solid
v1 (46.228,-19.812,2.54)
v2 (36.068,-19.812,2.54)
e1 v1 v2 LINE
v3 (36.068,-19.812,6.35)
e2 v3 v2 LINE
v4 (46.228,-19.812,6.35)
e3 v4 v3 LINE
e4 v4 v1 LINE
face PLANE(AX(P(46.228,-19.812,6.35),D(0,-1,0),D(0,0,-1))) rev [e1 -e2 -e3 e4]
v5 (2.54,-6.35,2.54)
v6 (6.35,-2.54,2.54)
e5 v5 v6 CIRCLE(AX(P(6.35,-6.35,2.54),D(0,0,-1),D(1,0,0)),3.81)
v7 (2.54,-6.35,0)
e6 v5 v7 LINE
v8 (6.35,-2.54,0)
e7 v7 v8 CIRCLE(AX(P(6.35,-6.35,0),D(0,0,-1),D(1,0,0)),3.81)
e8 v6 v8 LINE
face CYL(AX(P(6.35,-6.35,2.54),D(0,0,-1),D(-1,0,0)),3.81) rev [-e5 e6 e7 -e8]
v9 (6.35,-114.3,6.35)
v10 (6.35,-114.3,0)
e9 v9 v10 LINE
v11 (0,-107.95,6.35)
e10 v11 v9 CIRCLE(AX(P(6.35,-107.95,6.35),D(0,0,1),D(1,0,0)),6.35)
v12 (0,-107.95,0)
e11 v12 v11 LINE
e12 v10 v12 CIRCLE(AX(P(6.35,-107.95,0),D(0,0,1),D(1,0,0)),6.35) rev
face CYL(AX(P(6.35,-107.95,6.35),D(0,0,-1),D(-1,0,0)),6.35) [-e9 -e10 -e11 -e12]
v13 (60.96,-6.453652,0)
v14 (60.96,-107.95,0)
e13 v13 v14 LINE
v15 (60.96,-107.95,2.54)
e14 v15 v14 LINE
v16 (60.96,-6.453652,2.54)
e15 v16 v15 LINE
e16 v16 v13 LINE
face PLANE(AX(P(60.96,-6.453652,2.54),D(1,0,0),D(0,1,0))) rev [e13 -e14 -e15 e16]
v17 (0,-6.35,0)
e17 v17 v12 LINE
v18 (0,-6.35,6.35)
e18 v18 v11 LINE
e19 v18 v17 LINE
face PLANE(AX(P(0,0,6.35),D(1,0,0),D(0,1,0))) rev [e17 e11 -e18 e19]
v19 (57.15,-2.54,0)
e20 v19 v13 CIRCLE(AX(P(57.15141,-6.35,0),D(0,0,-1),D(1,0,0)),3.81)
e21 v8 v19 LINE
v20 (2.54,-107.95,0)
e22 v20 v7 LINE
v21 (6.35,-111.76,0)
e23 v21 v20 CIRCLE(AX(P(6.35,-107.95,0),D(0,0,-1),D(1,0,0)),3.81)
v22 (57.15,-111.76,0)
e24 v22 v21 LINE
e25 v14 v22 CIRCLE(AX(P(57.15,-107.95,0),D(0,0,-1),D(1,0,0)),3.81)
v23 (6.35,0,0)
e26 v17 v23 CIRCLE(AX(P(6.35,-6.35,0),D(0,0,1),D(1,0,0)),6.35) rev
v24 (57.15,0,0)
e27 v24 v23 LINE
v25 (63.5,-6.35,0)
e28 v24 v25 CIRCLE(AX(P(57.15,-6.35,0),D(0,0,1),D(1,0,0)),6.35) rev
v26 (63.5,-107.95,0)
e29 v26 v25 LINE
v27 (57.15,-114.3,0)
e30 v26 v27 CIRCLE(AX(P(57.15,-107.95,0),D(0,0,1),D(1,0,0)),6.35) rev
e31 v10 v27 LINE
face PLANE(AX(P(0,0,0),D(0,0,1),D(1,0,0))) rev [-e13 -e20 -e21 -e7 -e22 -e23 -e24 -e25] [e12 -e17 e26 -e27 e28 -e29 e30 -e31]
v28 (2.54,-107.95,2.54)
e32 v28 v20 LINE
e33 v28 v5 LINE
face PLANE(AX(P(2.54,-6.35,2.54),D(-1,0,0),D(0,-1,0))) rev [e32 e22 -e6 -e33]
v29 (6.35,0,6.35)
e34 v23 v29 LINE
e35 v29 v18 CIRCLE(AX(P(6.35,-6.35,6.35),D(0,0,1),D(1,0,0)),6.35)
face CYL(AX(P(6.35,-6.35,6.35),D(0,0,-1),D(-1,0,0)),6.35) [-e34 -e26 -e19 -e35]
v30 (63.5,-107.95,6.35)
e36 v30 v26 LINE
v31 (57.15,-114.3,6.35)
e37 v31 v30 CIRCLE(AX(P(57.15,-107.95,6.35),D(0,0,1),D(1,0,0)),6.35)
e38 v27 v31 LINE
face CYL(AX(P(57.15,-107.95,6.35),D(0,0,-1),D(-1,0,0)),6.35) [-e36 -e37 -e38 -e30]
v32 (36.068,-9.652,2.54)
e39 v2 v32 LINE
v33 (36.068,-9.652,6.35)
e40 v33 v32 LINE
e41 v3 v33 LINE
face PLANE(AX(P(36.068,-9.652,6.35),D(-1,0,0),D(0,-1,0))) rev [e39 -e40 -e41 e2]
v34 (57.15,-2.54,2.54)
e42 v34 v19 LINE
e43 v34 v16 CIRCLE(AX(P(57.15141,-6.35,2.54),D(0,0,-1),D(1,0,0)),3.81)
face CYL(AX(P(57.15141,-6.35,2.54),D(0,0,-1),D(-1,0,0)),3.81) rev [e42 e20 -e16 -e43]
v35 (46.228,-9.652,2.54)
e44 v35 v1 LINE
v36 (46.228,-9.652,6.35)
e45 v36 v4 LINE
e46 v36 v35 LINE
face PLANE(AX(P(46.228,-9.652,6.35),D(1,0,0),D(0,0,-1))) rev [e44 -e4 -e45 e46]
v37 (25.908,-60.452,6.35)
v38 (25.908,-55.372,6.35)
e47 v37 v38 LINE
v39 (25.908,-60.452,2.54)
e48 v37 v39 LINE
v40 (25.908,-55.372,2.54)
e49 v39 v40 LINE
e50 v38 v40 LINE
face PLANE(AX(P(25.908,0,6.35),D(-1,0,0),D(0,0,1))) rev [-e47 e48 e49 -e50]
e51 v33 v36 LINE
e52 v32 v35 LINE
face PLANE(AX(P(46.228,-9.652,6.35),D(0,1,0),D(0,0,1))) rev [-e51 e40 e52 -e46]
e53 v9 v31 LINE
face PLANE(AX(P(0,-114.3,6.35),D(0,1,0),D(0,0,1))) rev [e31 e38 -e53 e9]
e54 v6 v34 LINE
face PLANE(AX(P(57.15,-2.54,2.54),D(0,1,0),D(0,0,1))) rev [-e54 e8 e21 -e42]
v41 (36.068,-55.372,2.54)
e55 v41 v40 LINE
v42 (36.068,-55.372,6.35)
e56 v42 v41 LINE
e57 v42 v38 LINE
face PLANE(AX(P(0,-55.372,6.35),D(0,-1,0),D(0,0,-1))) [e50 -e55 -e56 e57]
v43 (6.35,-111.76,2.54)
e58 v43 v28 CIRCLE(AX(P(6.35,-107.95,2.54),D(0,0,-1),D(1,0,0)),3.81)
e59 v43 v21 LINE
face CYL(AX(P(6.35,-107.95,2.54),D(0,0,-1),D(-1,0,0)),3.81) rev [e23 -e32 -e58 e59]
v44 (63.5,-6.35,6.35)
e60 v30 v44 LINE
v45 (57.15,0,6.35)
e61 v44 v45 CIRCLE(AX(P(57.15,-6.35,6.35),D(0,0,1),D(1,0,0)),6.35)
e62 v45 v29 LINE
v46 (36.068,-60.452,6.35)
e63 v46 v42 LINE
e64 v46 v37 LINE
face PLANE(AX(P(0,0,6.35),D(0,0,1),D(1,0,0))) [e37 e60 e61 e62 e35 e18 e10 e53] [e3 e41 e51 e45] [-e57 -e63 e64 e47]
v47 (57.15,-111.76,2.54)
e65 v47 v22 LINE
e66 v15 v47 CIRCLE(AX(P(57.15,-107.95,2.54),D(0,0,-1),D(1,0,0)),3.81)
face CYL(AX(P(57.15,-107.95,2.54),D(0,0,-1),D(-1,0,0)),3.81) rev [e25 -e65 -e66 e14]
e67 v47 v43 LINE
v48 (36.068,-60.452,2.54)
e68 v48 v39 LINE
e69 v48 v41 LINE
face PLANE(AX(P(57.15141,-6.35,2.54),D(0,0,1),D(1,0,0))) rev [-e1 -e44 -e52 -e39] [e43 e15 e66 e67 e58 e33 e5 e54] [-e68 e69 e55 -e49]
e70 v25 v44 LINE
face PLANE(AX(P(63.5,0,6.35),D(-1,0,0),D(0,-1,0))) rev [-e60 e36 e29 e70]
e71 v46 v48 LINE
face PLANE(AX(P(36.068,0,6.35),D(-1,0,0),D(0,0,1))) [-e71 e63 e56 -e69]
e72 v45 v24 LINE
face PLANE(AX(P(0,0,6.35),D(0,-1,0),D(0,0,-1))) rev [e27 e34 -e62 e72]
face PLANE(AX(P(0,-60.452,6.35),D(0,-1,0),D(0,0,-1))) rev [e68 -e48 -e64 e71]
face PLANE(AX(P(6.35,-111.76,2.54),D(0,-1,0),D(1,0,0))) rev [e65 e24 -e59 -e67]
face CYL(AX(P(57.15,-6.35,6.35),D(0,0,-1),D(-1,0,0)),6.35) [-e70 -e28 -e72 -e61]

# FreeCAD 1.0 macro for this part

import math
import FreeCAD as App
import Part
import Sketcher

V = App.Vector
Q = App.Units.Quantity


def edges_at(feature, points):
    """Names of the edges that pass closest to the given points."""
    edges = feature.Shape.Edges
    near = lambda p: min(range(len(edges)), key=lambda i: edges[i].distToShape(Part.Vertex(*p))[0])
    return sorted({f"Edge{near(p) + 1}" for p in points})


def add_polygon(sketch, points):
    """Adds a closed chain of lines whose ends are joined by coincident constraints."""
    first, n = sketch.GeometryCount, len(points)
    for a, b in zip(points, points[1:] + points[:1]):
        sketch.addGeometry(Part.LineSegment(App.Vector(*a, 0), App.Vector(*b, 0)), False)
    for i in range(n):
        sketch.addConstraint(Sketcher.Constraint("Coincident", first + i, 2, first + (i + 1) % n, 1))

doc = App.newDocument("Part")
body = doc.addObject("PartDesign::Body", "Body")

sketch1 = doc.addObject("Sketcher::SketchObject", "Sketch")
body.addObject(sketch1)
sketch1.AttachmentSupport = (doc.XY_Plane, [""])
sketch1.MapMode = "FlatFace"
add_polygon(sketch1, [(0, 0), (0, -114), (64, -114), (64, 0)])
sketch1.addConstraint(Sketcher.Constraint("Vertical", 0))
sketch1.addConstraint(Sketcher.Constraint("Horizontal", 1))
sketch1.addConstraint(Sketcher.Constraint("Vertical", 2))
sketch1.addConstraint(Sketcher.Constraint("Horizontal", 3))
sketch1.addConstraint(Sketcher.Constraint("Coincident", 3, 2, -1, 1))
sketch1.addConstraint(Sketcher.Constraint("DistanceX", 1, 1, 1, 2, Q("2.5 in")))
sketch1.addConstraint(Sketcher.Constraint("DistanceY", 0, 2, 0, 1, Q("4.5 in")))
pad1 = doc.addObject("PartDesign::Pad", "Pad")
body.addObject(pad1)
pad1.Profile = sketch1
pad1.Length = Q("0.25 in")
doc.recompute()

fillet = doc.addObject("PartDesign::Fillet", "Fillet")
body.addObject(fillet)
fillet.Base = (pad1, edges_at(pad1, [
    (0, 0, 3.175),
    (63.5, 0, 3.175),
    (63.5, -114.3, 3.175),
    (0, -114.3, 3.175),
]))
fillet.Radius = Q("0.25 in")

sketch2 = doc.addObject("Sketcher::SketchObject", "Sketch001")
body.addObject(sketch2)
sketch2.AttachmentSupport = (doc.XY_Plane, [""])
sketch2.MapMode = "FlatFace"
sketch2.addGeometry(Part.LineSegment(V(61, -6.5, 0), V(61, -108, 0)), False)
sketch2.addGeometry(Part.ArcOfCircle(Part.Circle(V(57.1, -107.9, 0), V(0, 0, 1), 3.8), math.radians(-90), math.radians(0)), False)
sketch2.addGeometry(Part.LineSegment(V(57.1, -111.8, 0), V(6.3, -111.8, 0)), False)
sketch2.addGeometry(Part.ArcOfCircle(Part.Circle(V(6.4, -107.9, 0), V(0, 0, 1), 3.8), math.radians(-180), math.radians(-90)), False)
sketch2.addGeometry(Part.LineSegment(V(2.5, -108, 0), V(2.5, -6.3, 0)), False)
sketch2.addGeometry(Part.ArcOfCircle(Part.Circle(V(6.4, -6.4, 0), V(0, 0, 1), 3.8), math.radians(90), math.radians(180)), False)
sketch2.addGeometry(Part.LineSegment(V(6.3, -2.5, 0), V(57.1, -2.5, 0)), False)
sketch2.addGeometry(Part.ArcOfCircle(Part.Circle(V(57.2, -6.3, 0), V(0, 0, 1), 3.8), math.radians(-2), math.radians(90)), False)
sketch2.addConstraint(Sketcher.Constraint("Tangent", 0, 2, 1, 2))
sketch2.addConstraint(Sketcher.Constraint("Tangent", 1, 1, 2, 1))
sketch2.addConstraint(Sketcher.Constraint("Tangent", 2, 2, 3, 2))
sketch2.addConstraint(Sketcher.Constraint("Tangent", 3, 1, 4, 1))
sketch2.addConstraint(Sketcher.Constraint("Tangent", 4, 2, 5, 2))
sketch2.addConstraint(Sketcher.Constraint("Tangent", 5, 1, 6, 1))
sketch2.addConstraint(Sketcher.Constraint("Coincident", 6, 2, 7, 2))
sketch2.addConstraint(Sketcher.Constraint("Coincident", 7, 1, 0, 1))
sketch2.addConstraint(Sketcher.Constraint("Vertical", 0))
sketch2.addConstraint(Sketcher.Constraint("Horizontal", 2))
sketch2.addConstraint(Sketcher.Constraint("Vertical", 4))
sketch2.addConstraint(Sketcher.Constraint("Horizontal", 6))
sketch2.addConstraint(Sketcher.Constraint("Equal", 1, 3))
sketch2.addConstraint(Sketcher.Constraint("Equal", 3, 5))
sketch2.addConstraint(Sketcher.Constraint("Equal", 5, 7))
sketch2.addConstraint(Sketcher.Constraint("Vertical", 1, 1, 6, 2))
sketch2.addConstraint(Sketcher.Constraint("DistanceX", 2, 2, 2, 1, Q("2 in")))
sketch2.addConstraint(Sketcher.Constraint("DistanceY", 4, 1, 4, 2, Q("4 in")))
sketch2.addConstraint(Sketcher.Constraint("Radius", 1, Q("0.15 in")))
sketch2.addConstraint(Sketcher.Constraint("DistanceX", -1, 1, 0, 2, Q("2.4 in")))
sketch2.addConstraint(Sketcher.Constraint("DistanceY", 1, 1, -1, 1, Q("4.4 in")))
sketch2.addConstraint(Sketcher.Constraint("DistanceY", 0, 2, 0, 1, Q("101.496348 mm")))
pocket1 = doc.addObject("PartDesign::Pocket", "Pocket")
body.addObject(pocket1)
pocket1.Profile = sketch2
pocket1.Length = Q("0.1 in")
pocket1.Reversed = True

sketch3 = doc.addObject("Sketcher::SketchObject", "Sketch002")
body.addObject(sketch3)
sketch3.AttachmentSupport = (doc.XY_Plane, [""])
sketch3.MapMode = "FlatFace"
sketch3.AttachmentOffset = App.Placement(V(0, 0, 0.1 * 25.4), App.Rotation())
add_polygon(sketch3, [(46, -10), (46, -20), (36, -20), (36, -10)])
sketch3.addConstraint(Sketcher.Constraint("Vertical", 0))
sketch3.addConstraint(Sketcher.Constraint("Horizontal", 1))
sketch3.addConstraint(Sketcher.Constraint("Vertical", 2))
sketch3.addConstraint(Sketcher.Constraint("Horizontal", 3))
sketch3.addConstraint(Sketcher.Constraint("Equal", 3, 0))
sketch3.addConstraint(Sketcher.Constraint("DistanceX", 1, 2, 1, 1, Q("0.4 in")))
sketch3.addConstraint(Sketcher.Constraint("DistanceX", -1, 1, 0, 2, Q("1.82 in")))
sketch3.addConstraint(Sketcher.Constraint("DistanceY", 0, 2, -1, 1, Q("0.78 in")))
pocket2 = doc.addObject("PartDesign::Pocket", "Pocket001")
body.addObject(pocket2)
pocket2.Profile = sketch3
pocket2.Type = "ThroughAll"
pocket2.Reversed = True

sketch4 = doc.addObject("Sketcher::SketchObject", "Sketch003")
body.addObject(sketch4)
sketch4.AttachmentSupport = (doc.XY_Plane, [""])
sketch4.MapMode = "FlatFace"
sketch4.AttachmentOffset = App.Placement(V(0, 0, 0.1 * 25.4), App.Rotation())
add_polygon(sketch4, [(36, -55), (36, -60), (26, -60), (26, -55)])
sketch4.addConstraint(Sketcher.Constraint("Vertical", 0))
sketch4.addConstraint(Sketcher.Constraint("Horizontal", 1))
sketch4.addConstraint(Sketcher.Constraint("Vertical", 2))
sketch4.addConstraint(Sketcher.Constraint("Horizontal", 3))
sketch4.addConstraint(Sketcher.Constraint("DistanceX", 1, 2, 1, 1, Q("0.4 in")))
sketch4.addConstraint(Sketcher.Constraint("DistanceY", 0, 2, 0, 1, Q("0.2 in")))
sketch4.addConstraint(Sketcher.Constraint("DistanceX", -1, 1, 0, 2, Q("1.42 in")))
sketch4.addConstraint(Sketcher.Constraint("DistanceY", 0, 2, -1, 1, Q("2.38 in")))
pocket3 = doc.addObject("PartDesign::Pocket", "Pocket002")
body.addObject(pocket3)
pocket3.Profile = sketch4
pocket3.Type = "ThroughAll"
pocket3.Reversed = True

doc.recompute()
